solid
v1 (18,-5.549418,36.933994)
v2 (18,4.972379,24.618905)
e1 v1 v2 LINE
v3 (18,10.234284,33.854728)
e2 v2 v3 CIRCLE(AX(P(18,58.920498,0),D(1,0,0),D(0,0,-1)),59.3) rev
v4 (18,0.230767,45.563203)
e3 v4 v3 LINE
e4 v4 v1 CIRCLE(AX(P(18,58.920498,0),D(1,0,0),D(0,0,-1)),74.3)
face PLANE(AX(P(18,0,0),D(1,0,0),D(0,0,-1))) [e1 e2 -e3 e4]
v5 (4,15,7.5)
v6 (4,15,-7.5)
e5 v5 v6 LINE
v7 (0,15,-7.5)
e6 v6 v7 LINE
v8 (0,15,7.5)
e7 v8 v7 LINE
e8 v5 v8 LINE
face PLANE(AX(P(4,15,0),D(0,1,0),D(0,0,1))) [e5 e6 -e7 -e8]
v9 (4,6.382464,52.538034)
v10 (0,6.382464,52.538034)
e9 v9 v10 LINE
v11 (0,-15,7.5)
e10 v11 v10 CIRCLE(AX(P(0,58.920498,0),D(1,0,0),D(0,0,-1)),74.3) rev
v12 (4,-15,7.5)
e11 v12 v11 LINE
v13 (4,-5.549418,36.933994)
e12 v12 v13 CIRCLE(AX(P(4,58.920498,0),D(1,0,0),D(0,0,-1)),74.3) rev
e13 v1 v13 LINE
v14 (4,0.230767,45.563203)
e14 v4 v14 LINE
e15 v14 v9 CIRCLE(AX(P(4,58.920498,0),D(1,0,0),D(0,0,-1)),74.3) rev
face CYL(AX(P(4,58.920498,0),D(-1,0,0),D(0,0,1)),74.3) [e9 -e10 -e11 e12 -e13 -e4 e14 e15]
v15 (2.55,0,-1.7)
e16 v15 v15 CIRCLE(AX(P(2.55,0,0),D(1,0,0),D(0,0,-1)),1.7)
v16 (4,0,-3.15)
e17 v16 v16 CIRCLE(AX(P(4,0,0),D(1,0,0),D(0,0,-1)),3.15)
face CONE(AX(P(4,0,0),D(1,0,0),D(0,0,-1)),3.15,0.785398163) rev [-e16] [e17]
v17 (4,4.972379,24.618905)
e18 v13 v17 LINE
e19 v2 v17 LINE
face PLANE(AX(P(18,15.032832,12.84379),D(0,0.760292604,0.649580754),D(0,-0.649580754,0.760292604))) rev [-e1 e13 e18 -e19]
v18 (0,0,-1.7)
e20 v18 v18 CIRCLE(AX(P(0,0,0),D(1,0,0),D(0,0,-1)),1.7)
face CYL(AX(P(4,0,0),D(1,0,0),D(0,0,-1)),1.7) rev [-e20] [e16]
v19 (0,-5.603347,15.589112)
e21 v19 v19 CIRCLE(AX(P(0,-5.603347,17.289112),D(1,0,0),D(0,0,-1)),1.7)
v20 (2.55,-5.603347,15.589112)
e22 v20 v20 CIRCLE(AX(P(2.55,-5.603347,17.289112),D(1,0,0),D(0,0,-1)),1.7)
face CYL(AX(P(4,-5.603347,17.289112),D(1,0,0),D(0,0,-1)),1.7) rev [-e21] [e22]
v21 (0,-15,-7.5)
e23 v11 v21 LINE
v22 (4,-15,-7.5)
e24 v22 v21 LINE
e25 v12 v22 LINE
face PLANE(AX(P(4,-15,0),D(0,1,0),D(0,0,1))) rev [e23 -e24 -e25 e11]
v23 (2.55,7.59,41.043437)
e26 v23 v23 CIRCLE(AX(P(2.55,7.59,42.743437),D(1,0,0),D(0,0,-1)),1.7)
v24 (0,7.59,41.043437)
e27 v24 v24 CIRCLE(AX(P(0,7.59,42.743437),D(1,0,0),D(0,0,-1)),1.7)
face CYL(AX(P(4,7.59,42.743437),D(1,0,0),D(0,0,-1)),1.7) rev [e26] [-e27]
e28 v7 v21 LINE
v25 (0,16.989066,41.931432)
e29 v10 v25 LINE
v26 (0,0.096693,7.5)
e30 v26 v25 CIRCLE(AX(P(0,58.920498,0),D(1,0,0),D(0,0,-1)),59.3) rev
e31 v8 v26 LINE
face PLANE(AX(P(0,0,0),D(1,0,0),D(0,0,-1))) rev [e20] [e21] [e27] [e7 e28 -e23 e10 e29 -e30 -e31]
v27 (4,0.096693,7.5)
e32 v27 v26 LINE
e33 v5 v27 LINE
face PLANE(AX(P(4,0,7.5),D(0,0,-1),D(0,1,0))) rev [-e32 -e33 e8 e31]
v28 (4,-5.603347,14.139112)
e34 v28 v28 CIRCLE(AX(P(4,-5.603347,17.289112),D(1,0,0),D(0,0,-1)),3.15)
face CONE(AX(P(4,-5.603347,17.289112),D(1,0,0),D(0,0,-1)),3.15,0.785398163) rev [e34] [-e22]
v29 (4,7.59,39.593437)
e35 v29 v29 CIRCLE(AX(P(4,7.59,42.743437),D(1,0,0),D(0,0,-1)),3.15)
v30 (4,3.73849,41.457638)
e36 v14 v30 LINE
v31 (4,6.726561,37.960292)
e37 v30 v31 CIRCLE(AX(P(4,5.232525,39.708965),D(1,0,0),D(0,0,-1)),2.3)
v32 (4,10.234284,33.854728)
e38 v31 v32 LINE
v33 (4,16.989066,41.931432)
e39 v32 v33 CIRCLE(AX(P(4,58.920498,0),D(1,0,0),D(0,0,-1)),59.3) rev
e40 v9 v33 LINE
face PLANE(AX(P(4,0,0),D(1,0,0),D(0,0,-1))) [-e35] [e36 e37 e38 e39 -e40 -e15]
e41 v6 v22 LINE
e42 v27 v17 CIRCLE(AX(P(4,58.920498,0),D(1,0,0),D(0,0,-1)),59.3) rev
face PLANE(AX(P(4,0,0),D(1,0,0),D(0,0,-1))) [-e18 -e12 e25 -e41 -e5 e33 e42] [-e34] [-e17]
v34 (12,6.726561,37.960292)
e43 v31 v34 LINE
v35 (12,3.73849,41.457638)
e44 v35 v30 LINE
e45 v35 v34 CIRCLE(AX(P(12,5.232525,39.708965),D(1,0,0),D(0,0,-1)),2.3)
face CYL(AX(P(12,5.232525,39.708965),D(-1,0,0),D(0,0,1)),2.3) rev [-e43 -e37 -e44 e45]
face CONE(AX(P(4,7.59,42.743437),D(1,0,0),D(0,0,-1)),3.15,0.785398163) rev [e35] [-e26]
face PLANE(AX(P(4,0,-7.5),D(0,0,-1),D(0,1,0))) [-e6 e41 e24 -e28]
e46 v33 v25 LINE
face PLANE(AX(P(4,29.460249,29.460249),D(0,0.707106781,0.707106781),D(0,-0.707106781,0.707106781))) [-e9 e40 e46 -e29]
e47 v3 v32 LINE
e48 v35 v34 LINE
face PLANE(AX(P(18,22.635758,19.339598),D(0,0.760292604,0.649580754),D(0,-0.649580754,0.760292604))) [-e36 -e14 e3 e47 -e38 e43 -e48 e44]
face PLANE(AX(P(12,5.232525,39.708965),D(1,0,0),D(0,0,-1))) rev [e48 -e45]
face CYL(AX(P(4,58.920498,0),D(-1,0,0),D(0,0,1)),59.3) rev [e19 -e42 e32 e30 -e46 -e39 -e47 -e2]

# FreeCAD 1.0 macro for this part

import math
import FreeCAD as App
import Part
import Sketcher
from FreeCAD import Vector
Q = App.Units.Quantity

doc = App.newDocument("Part")
body = doc.addObject("PartDesign::Body", "Body")

# Sketch on YZ plane
sketch1 = body.newObject("Sketcher::SketchObject", "Sketch")
sketch1.AttachmentSupport = (doc.getObject("YZ_Plane"), [""])
sketch1.MapMode = "FlatFace"
sketch1.addGeometry([
    Part.ArcOfCircle(Part.Circle(Vector(59, 0, 0), Vector(0, 0, 1), 74), math.radians(142), math.radians(174)),  # 0
    Part.LineSegment(Vector(-15, 8, 0), Vector(-15, -8, 0)),  # 1
    Part.LineSegment(Vector(-15, -8, 0), Vector(15, -8, 0)),  # 2
    Part.LineSegment(Vector(15, -8, 0), Vector(15, 8, 0)),  # 3
    Part.LineSegment(Vector(15, 8, 0), Vector(0, 8, 0)),  # 4
    Part.ArcOfCircle(Part.Circle(Vector(59, 0, 0), Vector(0, 0, 1), 59), math.radians(145), math.radians(173)),  # 5
    Part.ArcOfCircle(Part.Circle(Vector(59, 0, 0), Vector(0, 0, 1), 59), math.radians(135), math.radians(145.18)),  # 6
    Part.LineSegment(Vector(17, 42, 0), Vector(6, 53, 0)),  # 7
    Part.ArcOfCircle(Part.Circle(Vector(59, 0, 0), Vector(0, 0, 1), 74), math.radians(135), math.radians(142.17)),  # 8
], False)
sketch1.addConstraint([
    Sketcher.Constraint("Coincident", 0, 2, 1, 1),
    Sketcher.Constraint("Coincident", 1, 2, 2, 1),
    Sketcher.Constraint("Coincident", 2, 2, 3, 1),
    Sketcher.Constraint("Coincident", 3, 2, 4, 1),
    Sketcher.Constraint("Coincident", 4, 2, 5, 2),
    Sketcher.Constraint("Tangent", 5, 1, 6, 2),
    Sketcher.Constraint("Coincident", 6, 1, 7, 1),
    Sketcher.Constraint("Coincident", 7, 2, 8, 1),
    Sketcher.Constraint("Tangent", 8, 2, 0, 1),
    Sketcher.Constraint("Vertical", 1),
    Sketcher.Constraint("Horizontal", 2),
    Sketcher.Constraint("Vertical", 3),
    Sketcher.Constraint("Horizontal", 4),
    Sketcher.Constraint("Coincident", 5, 3, 0, 3),
    Sketcher.Constraint("Equal", 5, 6),
    Sketcher.Constraint("Equal", 0, 8),
    Sketcher.Constraint("Symmetric", 0, 2, 2, 2, -1, 1),
    Sketcher.Constraint("PointOnObject", 0, 3, -1),
    Sketcher.Constraint("Horizontal", 0, 2, 3, 2),
    Sketcher.Constraint("Radius", 0, 74.3),
    Sketcher.Constraint("Radius", 5, 59.3),
    Sketcher.Constraint("DistanceX", 2, 1, 2, 2, 30.0),
    Sketcher.Constraint("DistanceY", 1, 2, 1, 1, 15.0),
    Sketcher.Constraint("Angle", 7, Q("135 deg")),
    Sketcher.Constraint("DistanceX", -1, 1, 5, 1, 10.23587),
    Sketcher.Constraint("DistanceX", -1, 1, 8, 2, 0.23245),
    Sketcher.Constraint("DistanceX", 4, 2, 7, 2, 6.285771),
])
pad1 = body.newObject("PartDesign::Pad", "Pad")
pad1.Profile = sketch1
pad1.Length = 4

# Sketch on YZ plane
sketch2 = body.newObject("Sketcher::SketchObject", "Sketch001")
sketch2.AttachmentSupport = (doc.getObject("YZ_Plane"), [""])
sketch2.MapMode = "FlatFace"
sketch2.AttachmentOffset = App.Placement(Vector(0, 0, 4), App.Rotation())
sketch2.addGeometry([
    Part.LineSegment(Vector(10, 34, 0), Vector(0, 46, 0)),
    Part.ArcOfCircle(Part.Circle(Vector(59, 0, 0), Vector(0, 0, 1), 74), math.radians(142.18), math.radians(150.19)),
    Part.LineSegment(Vector(-6, 37, 0), Vector(5, 25, 0)),
    Part.ArcOfCircle(Part.Circle(Vector(59, 0, 0), Vector(0, 0, 1), 59), math.radians(145.19), math.radians(155.47)),
], False)
sketch2.addConstraint([
    Sketcher.Constraint("Coincident", 0, 2, 1, 1),
    Sketcher.Constraint("Coincident", 1, 2, 2, 1),
    Sketcher.Constraint("Coincident", 2, 2, 3, 2),
    Sketcher.Constraint("Coincident", 3, 1, 0, 1),
    Sketcher.Constraint("Coincident", 3, 3, 1, 3),
    Sketcher.Constraint("PointOnObject", 1, 3, -1),
    Sketcher.Constraint("Parallel", 0, 2),
    Sketcher.Constraint("Radius", 1, 74.3),
    Sketcher.Constraint("Radius", 3, 59.3),
    Sketcher.Constraint("Angle", 0, Q("130.51 deg")),
    Sketcher.Constraint("Distance", 0, 15.399959),
    Sketcher.Constraint("Distance", 2, 16.197828),
    Sketcher.Constraint("DistanceX", 1, 2, -1, 1, 5.549418),
])
pad2 = body.newObject("PartDesign::Pad", "Pad001")
pad2.Profile = sketch2
pad2.Length = 14

# Sketch on YZ plane
sketch3 = body.newObject("Sketcher::SketchObject", "Sketch002")
sketch3.AttachmentSupport = (doc.getObject("YZ_Plane"), [""])
sketch3.MapMode = "FlatFace"
sketch3.AttachmentOffset = App.Placement(Vector(0, 0, 4), App.Rotation())
sketch3.addGeometry(Part.Circle(Vector(5.2, 39.7, 0), Vector(0, 0, 1), 2.3), False)
sketch3.addConstraint([
    Sketcher.Constraint("Diameter", 0, 4.6),
    Sketcher.Constraint("DistanceX", -1, 1, 0, 3, 5.232525),
    Sketcher.Constraint("DistanceY", -1, 1, 0, 3, 39.708965),
])
pocket1 = body.newObject("PartDesign::Pocket", "Pocket")
pocket1.Profile = sketch3
pocket1.Length = 8
pocket1.Reversed = True

# Sketch on YZ plane
sketch4 = body.newObject("Sketcher::SketchObject", "Sketch003")
sketch4.AttachmentSupport = (doc.getObject("YZ_Plane"), [""])
sketch4.MapMode = "FlatFace"
sketch4.AttachmentOffset = App.Placement(Vector(0, 0, 4), App.Rotation())
sketch4.addGeometry([
    Part.Circle(Vector(7.6, 42.7, 0), Vector(0, 0, 1), 1.7),
    Part.Circle(Vector(-5.6, 17.3, 0), Vector(0, 0, 1), 1.7),
    Part.Circle(Vector(0, 0, 0), Vector(0, 0, 1), 1.7),
], False)
sketch4.addConstraint([
    Sketcher.Constraint("Coincident", 2, 3, -1, 1),
    Sketcher.Constraint("Equal", 0, 1),
    Sketcher.Constraint("Equal", 1, 2),
    Sketcher.Constraint("Diameter", 0, 3.4),
    Sketcher.Constraint("DistanceX", -1, 1, 0, 3, 7.59),
    Sketcher.Constraint("DistanceY", -1, 1, 0, 3, 42.743437),
    Sketcher.Constraint("DistanceX", 1, 3, -1, 1, 5.603347),
    Sketcher.Constraint("DistanceY", -1, 1, 1, 3, 17.289112),
])
doc.recompute()
hole = body.newObject("PartDesign::Hole", "Hole")
hole.Profile = sketch4
hole.ThreadType = "None"
hole.Diameter = 3.4
hole.DepthType = "Dimension"
hole.Depth = 6.35
hole.DrillPoint = "Angled"
hole.DrillPointAngle = 118
hole.HoleCutType = "Countersink"
hole.HoleCutDiameter = 6.3
hole.HoleCutCountersinkAngle = 90

doc.recompute()
